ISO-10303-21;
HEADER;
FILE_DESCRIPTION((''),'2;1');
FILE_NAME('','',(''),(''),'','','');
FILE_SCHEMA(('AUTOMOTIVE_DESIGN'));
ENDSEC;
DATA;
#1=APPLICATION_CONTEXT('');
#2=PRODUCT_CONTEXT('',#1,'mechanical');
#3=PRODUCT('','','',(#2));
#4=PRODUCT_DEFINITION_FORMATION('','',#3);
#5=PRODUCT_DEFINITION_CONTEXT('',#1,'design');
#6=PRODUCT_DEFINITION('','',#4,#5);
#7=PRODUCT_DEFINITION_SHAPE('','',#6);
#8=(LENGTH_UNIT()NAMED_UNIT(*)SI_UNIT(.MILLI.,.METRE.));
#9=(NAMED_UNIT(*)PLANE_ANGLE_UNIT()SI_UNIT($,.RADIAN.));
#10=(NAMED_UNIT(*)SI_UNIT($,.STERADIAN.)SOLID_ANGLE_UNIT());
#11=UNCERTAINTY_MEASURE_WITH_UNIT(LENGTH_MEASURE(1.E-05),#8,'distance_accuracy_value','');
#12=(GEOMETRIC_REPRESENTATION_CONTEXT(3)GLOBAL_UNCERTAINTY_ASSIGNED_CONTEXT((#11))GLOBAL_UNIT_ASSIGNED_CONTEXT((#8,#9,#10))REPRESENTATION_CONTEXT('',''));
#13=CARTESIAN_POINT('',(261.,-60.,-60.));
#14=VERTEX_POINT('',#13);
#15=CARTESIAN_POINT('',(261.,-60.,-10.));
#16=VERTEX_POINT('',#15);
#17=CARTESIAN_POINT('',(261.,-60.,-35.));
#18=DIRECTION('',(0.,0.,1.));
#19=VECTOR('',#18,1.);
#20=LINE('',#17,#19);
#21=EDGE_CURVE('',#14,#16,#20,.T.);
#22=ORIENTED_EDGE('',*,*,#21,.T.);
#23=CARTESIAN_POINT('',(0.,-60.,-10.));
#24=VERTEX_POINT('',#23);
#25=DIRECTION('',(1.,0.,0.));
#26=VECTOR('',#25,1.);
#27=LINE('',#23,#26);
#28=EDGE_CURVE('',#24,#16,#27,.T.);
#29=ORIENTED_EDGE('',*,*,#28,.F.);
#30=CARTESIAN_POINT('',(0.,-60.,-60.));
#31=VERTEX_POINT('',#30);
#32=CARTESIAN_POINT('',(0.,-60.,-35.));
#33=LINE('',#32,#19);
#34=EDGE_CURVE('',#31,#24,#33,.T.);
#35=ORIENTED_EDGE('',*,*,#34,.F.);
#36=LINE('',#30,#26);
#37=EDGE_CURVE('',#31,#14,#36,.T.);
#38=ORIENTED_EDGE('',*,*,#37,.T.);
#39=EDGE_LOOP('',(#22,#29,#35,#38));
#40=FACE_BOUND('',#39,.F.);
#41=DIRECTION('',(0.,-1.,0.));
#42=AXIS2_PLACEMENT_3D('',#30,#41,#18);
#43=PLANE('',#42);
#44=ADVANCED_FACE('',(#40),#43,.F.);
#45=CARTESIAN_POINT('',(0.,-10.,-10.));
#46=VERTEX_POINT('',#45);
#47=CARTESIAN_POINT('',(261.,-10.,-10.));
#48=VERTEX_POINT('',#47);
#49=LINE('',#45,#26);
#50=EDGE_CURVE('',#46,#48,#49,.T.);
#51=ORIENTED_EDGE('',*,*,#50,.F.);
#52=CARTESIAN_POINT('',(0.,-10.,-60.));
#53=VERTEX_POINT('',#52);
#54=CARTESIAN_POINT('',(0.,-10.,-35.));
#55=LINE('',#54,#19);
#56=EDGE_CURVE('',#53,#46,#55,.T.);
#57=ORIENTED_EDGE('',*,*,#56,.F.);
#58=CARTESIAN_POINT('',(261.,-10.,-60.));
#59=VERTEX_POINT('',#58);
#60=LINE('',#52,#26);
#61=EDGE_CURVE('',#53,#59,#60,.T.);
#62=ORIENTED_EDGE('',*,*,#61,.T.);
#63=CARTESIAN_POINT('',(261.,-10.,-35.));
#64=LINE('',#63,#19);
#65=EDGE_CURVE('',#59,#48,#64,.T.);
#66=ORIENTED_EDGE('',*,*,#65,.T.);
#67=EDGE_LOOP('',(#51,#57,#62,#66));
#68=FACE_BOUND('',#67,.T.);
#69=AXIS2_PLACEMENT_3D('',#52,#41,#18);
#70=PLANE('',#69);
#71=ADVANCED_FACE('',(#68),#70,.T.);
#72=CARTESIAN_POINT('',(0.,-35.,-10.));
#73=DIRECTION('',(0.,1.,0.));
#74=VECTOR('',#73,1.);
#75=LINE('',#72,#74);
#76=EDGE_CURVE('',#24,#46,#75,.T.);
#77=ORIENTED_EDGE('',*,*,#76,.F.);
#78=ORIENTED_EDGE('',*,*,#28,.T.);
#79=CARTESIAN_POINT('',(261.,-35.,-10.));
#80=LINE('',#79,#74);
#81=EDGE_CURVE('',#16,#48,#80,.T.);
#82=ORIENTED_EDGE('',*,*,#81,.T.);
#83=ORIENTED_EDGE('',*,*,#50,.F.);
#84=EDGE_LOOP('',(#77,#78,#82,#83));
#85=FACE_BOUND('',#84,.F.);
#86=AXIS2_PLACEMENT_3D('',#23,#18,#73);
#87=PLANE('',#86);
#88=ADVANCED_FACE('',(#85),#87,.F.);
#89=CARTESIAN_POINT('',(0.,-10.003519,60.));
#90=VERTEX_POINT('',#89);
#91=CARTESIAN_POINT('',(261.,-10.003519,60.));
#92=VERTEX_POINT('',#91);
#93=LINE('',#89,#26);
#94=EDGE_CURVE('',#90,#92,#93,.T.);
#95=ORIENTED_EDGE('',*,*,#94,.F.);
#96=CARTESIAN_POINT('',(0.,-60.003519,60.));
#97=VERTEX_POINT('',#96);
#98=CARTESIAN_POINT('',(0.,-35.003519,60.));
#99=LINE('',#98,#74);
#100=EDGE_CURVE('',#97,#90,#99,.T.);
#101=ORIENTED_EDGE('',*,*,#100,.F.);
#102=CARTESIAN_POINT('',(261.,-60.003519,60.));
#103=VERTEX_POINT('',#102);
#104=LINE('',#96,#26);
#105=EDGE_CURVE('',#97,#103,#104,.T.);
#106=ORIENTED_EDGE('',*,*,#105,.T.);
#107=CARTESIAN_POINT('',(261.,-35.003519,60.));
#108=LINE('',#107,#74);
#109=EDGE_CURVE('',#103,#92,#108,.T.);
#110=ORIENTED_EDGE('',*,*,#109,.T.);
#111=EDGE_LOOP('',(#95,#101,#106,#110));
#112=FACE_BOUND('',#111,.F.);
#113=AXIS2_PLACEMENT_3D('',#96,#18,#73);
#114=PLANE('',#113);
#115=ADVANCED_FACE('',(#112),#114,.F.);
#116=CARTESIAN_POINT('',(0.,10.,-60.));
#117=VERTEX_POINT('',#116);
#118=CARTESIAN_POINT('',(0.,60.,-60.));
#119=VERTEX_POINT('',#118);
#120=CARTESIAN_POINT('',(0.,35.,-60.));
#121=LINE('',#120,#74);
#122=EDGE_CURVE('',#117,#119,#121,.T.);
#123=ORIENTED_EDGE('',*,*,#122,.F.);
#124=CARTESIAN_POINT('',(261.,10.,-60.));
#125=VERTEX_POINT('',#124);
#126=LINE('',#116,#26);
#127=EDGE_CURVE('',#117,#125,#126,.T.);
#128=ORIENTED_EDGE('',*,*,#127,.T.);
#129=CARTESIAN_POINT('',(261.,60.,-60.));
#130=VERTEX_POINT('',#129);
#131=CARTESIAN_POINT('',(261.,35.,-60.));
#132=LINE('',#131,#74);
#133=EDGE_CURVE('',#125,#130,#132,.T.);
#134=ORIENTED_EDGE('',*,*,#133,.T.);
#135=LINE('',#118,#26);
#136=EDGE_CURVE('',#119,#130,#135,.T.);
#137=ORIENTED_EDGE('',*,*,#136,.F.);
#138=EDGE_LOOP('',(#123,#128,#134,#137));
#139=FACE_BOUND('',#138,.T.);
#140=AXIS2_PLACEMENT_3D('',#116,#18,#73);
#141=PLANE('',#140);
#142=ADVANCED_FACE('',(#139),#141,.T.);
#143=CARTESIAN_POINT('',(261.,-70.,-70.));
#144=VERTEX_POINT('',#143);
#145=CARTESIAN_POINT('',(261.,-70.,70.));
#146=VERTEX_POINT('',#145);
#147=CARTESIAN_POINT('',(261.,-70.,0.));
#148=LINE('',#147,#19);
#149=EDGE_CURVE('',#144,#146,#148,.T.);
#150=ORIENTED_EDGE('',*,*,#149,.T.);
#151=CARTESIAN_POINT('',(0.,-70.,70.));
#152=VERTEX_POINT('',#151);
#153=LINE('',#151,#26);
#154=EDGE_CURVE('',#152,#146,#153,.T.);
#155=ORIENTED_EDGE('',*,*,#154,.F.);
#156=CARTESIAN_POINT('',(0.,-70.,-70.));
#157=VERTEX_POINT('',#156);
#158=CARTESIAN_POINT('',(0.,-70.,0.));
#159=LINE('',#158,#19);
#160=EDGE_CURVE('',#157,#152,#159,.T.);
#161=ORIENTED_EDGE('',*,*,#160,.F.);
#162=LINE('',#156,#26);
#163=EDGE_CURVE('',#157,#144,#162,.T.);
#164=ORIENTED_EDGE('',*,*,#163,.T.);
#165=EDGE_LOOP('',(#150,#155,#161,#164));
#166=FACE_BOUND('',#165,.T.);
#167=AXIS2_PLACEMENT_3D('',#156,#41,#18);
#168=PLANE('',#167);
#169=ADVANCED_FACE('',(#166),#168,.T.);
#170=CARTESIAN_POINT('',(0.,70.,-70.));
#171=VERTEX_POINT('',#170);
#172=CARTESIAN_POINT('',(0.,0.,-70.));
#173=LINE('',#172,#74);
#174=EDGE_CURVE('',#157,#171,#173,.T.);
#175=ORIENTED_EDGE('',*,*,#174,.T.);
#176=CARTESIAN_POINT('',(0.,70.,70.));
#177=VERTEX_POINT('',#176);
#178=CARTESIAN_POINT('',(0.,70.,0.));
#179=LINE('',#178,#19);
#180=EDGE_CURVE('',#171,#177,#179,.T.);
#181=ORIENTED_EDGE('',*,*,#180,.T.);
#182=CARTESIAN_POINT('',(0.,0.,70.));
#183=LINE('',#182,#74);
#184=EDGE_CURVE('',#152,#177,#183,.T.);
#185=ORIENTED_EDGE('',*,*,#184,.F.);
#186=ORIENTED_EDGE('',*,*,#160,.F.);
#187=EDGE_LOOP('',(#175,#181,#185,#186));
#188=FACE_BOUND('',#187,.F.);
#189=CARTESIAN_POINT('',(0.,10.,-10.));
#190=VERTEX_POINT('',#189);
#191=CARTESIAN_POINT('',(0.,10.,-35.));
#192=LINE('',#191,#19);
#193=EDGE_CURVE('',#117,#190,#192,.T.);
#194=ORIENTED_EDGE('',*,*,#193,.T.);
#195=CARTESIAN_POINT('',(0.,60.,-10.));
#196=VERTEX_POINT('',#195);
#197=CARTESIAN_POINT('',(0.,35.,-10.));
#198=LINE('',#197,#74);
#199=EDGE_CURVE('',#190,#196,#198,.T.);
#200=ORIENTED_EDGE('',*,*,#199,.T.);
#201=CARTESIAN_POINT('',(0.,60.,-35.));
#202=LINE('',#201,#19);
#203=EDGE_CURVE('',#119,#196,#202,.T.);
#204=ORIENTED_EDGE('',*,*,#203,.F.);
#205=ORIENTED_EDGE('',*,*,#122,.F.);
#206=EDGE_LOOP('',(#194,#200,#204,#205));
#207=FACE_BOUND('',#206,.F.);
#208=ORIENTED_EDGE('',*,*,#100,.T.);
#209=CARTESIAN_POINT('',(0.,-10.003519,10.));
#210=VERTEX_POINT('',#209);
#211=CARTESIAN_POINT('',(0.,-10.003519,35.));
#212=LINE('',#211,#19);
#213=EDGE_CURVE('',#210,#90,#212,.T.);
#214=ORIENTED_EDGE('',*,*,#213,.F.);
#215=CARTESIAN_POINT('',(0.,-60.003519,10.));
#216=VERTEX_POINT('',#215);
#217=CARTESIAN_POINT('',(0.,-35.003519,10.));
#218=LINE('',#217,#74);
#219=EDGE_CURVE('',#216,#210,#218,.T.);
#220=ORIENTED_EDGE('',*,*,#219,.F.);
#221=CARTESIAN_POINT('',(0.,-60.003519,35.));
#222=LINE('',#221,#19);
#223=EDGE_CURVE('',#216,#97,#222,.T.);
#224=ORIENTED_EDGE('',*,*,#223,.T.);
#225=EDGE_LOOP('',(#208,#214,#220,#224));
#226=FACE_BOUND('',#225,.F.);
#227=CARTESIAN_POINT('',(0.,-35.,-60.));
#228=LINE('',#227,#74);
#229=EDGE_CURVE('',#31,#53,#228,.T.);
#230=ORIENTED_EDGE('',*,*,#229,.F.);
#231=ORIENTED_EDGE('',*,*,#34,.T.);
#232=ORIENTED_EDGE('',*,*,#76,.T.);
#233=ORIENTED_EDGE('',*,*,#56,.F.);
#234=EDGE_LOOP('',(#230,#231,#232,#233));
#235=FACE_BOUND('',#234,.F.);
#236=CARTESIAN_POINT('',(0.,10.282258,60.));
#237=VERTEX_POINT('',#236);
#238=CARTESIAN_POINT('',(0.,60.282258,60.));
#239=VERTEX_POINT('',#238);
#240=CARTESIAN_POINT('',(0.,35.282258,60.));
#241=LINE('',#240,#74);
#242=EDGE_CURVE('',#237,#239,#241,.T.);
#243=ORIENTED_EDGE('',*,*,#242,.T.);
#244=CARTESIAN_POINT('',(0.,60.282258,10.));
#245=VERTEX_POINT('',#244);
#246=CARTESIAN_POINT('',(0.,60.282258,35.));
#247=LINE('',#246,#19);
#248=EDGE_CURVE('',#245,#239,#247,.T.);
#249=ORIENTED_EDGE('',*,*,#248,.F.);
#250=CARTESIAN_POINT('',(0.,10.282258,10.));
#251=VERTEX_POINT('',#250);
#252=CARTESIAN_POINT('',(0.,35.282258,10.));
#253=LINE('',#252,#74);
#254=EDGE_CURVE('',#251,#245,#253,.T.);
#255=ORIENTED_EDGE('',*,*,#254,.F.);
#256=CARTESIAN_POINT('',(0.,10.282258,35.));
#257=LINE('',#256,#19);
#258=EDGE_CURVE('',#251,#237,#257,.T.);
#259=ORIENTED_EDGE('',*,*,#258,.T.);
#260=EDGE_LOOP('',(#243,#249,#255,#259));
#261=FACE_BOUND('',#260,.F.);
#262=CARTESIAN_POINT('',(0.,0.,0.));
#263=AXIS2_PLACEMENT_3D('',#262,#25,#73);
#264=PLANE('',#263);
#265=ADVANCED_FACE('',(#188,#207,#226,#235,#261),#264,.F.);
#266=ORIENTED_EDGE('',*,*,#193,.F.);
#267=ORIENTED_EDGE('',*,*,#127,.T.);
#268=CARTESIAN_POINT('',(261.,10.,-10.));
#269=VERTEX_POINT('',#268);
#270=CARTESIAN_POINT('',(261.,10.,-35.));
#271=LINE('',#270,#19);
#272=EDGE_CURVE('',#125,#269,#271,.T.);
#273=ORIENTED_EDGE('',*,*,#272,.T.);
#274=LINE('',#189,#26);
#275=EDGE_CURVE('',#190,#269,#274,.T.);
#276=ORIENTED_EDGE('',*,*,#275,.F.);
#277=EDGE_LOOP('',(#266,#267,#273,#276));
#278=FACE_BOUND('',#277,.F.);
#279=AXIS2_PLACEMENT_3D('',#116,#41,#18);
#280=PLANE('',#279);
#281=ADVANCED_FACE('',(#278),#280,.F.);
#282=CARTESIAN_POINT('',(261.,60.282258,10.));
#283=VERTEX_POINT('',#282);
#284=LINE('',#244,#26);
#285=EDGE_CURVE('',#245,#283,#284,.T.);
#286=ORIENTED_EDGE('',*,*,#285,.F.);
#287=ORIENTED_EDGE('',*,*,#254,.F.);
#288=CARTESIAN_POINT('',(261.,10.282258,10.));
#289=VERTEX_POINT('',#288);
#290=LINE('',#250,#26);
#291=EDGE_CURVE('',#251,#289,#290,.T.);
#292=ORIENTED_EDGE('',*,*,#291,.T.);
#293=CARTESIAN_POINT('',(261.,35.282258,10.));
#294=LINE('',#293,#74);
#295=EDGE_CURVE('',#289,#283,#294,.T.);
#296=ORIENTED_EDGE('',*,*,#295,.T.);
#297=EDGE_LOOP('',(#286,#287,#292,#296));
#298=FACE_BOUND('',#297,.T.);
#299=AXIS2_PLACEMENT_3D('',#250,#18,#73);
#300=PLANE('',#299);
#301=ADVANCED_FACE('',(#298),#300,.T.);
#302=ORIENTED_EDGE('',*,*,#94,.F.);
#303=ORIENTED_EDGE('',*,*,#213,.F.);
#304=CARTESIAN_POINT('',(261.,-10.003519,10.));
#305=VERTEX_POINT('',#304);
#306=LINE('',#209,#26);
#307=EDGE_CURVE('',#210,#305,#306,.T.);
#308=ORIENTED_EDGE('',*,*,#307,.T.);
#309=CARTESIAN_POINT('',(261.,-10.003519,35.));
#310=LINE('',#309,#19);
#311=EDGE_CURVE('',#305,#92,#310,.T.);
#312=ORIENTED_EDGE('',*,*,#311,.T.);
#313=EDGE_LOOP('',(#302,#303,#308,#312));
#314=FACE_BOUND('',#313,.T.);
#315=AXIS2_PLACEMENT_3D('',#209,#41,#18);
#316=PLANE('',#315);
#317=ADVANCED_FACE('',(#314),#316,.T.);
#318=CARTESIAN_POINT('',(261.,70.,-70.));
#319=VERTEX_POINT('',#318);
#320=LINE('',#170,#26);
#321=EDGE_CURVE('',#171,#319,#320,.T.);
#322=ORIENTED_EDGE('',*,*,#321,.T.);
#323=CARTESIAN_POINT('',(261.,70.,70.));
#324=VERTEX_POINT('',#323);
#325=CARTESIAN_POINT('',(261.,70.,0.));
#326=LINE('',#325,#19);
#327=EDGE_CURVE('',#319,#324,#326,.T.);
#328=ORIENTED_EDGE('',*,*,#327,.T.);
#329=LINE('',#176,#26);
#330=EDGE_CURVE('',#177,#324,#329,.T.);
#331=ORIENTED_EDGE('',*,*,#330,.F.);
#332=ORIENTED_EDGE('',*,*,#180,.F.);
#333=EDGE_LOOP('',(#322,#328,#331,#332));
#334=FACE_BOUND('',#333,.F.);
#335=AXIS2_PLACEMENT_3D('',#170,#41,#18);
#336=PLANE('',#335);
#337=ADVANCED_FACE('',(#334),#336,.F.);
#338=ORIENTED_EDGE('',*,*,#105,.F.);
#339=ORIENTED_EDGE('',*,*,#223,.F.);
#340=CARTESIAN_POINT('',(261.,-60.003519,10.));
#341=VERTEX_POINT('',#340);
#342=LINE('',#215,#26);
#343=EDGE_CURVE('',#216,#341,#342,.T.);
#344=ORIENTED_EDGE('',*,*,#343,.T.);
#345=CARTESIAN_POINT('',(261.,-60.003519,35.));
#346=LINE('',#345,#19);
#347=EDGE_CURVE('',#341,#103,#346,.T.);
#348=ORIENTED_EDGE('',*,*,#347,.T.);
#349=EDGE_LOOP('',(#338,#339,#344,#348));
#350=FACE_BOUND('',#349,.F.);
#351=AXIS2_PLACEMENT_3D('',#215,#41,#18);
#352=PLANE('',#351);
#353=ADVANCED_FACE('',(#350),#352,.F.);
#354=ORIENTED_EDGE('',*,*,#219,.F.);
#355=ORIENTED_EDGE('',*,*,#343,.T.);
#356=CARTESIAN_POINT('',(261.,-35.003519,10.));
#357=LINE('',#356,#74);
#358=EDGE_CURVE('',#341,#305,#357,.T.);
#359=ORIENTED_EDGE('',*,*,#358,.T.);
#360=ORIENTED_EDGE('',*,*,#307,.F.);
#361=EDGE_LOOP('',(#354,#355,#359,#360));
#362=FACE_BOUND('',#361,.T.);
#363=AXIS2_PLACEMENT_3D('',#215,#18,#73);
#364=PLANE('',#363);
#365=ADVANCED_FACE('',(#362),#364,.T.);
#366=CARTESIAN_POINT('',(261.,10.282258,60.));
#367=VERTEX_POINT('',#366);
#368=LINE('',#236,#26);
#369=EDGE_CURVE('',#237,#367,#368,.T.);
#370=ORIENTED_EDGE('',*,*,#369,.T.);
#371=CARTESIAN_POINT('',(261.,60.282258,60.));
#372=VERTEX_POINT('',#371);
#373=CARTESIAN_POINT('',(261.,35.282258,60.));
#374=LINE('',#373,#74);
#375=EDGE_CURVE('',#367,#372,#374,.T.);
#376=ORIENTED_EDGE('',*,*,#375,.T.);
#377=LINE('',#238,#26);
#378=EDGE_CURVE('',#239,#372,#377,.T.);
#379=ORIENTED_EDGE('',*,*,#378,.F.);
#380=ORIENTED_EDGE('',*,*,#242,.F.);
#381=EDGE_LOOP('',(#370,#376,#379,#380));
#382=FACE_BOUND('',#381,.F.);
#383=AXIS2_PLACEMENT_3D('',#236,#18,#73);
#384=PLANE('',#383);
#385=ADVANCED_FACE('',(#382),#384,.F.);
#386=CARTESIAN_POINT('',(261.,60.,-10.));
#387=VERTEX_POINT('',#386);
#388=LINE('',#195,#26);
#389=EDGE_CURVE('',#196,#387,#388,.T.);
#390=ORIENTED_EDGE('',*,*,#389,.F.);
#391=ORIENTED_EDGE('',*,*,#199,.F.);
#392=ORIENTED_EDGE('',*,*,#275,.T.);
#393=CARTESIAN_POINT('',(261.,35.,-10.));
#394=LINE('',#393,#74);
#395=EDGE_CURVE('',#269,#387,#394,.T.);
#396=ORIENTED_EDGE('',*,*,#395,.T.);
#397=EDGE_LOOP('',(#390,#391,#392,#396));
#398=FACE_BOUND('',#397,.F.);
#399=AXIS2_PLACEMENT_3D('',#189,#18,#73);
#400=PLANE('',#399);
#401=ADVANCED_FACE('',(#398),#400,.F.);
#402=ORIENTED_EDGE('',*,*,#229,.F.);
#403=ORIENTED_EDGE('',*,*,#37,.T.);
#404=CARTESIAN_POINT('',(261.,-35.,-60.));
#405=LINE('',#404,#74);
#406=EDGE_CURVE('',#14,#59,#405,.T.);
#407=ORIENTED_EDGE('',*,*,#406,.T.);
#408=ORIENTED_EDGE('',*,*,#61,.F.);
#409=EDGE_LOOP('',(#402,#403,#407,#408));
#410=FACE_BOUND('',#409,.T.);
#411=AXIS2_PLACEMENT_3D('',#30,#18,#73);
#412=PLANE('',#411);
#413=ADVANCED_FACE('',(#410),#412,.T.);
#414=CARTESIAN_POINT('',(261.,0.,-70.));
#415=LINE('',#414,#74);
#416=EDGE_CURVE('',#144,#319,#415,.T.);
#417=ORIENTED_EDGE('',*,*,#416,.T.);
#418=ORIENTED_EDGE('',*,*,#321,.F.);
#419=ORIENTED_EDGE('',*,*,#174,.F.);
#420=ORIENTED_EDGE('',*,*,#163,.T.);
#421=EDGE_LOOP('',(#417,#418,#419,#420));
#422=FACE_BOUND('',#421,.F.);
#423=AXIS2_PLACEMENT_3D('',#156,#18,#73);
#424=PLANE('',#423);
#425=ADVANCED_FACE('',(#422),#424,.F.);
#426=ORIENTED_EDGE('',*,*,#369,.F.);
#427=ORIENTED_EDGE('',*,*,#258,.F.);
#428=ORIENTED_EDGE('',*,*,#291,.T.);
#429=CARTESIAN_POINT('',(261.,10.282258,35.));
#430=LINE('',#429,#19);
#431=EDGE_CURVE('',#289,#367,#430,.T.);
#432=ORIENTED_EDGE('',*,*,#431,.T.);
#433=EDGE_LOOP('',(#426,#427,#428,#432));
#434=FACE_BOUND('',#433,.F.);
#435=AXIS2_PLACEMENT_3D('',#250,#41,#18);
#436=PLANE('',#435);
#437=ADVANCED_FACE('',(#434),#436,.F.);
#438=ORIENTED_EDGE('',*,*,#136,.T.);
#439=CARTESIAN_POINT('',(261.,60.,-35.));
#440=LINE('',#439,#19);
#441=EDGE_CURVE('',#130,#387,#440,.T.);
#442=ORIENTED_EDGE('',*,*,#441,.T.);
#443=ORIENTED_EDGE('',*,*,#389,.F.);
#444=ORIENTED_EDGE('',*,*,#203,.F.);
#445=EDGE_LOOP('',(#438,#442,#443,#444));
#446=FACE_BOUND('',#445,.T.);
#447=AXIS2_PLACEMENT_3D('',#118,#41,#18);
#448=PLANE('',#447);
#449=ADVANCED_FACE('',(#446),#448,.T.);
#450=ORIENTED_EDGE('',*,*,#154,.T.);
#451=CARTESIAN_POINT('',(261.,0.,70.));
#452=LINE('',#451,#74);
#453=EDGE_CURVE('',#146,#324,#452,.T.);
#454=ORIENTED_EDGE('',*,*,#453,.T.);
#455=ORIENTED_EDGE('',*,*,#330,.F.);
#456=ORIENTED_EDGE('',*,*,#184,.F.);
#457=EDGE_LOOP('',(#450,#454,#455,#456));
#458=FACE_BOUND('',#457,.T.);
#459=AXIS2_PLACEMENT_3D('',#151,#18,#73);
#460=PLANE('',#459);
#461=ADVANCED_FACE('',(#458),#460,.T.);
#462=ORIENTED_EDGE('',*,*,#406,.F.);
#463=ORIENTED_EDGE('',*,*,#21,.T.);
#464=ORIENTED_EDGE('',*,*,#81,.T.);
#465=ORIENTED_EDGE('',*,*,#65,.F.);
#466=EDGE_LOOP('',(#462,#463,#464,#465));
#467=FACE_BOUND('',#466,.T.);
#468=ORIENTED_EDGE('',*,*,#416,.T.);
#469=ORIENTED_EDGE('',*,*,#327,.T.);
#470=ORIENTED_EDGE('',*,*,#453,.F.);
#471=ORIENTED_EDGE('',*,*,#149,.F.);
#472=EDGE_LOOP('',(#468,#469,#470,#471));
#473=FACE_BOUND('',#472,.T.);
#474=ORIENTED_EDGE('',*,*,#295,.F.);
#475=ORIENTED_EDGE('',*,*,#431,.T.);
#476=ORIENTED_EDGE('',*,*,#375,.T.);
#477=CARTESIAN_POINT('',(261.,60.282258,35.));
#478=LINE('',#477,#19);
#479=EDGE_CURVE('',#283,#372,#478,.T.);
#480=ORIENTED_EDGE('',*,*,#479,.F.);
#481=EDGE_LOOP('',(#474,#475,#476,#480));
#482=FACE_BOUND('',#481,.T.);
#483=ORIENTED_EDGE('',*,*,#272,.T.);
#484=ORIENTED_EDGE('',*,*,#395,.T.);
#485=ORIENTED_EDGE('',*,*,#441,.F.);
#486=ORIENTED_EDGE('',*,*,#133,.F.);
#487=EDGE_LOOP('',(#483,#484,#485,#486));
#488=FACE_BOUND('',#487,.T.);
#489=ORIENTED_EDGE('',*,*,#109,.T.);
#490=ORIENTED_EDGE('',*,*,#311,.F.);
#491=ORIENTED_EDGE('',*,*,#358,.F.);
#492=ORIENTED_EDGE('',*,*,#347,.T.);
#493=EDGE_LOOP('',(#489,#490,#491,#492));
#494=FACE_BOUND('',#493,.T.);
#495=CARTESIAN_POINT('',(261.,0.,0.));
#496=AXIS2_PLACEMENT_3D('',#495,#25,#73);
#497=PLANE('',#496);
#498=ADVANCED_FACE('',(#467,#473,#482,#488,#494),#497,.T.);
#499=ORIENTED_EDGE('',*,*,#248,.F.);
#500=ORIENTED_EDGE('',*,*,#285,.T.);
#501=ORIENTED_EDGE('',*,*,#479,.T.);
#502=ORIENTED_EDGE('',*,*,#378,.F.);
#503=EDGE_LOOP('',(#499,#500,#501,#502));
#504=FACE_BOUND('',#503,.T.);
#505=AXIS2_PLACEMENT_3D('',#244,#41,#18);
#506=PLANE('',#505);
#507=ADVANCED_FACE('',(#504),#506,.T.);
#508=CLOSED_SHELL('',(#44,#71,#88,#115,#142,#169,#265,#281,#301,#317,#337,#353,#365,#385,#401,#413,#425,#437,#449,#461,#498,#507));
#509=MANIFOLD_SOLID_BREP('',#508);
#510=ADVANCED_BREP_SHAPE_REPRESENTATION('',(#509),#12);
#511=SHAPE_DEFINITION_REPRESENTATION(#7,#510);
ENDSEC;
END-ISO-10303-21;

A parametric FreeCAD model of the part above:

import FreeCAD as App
import Part
import Sketcher

V = App.Vector
Q = App.Units.Quantity


def add_polygon(sketch, points):
    """Adds a closed chain of lines whose ends are joined by coincident constraints."""
    first, n = sketch.GeometryCount, len(points)
    for a, b in zip(points, points[1:] + points[:1]):
        sketch.addGeometry(Part.LineSegment(App.Vector(*a, 0), App.Vector(*b, 0)), False)
    for i in range(n):
        sketch.addConstraint(Sketcher.Constraint("Coincident", first + i, 2, first + (i + 1) % n, 1))

doc = App.newDocument("Part")
params = doc.addObject("Spreadsheet::Sheet", "Params")
for row, (alias, value) in enumerate([
    ("sketch1_width", "140 mm"),
    ("sketch1_width2", "50 mm"),
    ("pad1_length", "261 mm"),
], start=1):
    params.set(f"A{row}", alias)
    params.set(f"B{row}", "=" + value)
    params.setAlias(f"B{row}", alias)

body = doc.addObject("PartDesign::Body", "Body")

# Sketch on YZ plane
sketch1 = body.newObject("Sketcher::SketchObject", "Sketch")
sketch1.AttachmentSupport = (doc.getObject("YZ_Plane"), [""])
sketch1.MapMode = "FlatFace"
add_polygon(sketch1, [(-70, 70), (-70, -70), (70, -70), (70, 70)])  # lines 0-3
add_polygon(sketch1, [(-10, -60), (-60, -60), (-60, -10), (-10, -10)])  # lines 4-7
add_polygon(sketch1, [(60, -60), (10, -60), (10, -10), (60, -10)])  # lines 8-11
add_polygon(sketch1, [(-10, 10), (-60, 10), (-60, 60), (-10, 60)])  # lines 12-15
add_polygon(sketch1, [(60, 10), (10, 10), (10, 60), (60, 60)])  # lines 16-19
sketch1.addConstraint([
    Sketcher.Constraint("Vertical", 0),
    Sketcher.Constraint("Horizontal", 1),
    Sketcher.Constraint("Vertical", 2),
    Sketcher.Constraint("Horizontal", 3),
    Sketcher.Constraint("Horizontal", 4),
    Sketcher.Constraint("Vertical", 5),
    Sketcher.Constraint("Horizontal", 6),
    Sketcher.Constraint("Vertical", 7),
    Sketcher.Constraint("Horizontal", 8),
    Sketcher.Constraint("Vertical", 9),
    Sketcher.Constraint("Horizontal", 10),
    Sketcher.Constraint("Vertical", 11),
    Sketcher.Constraint("Horizontal", 12),
    Sketcher.Constraint("Vertical", 13),
    Sketcher.Constraint("Horizontal", 14),
    Sketcher.Constraint("Vertical", 15),
    Sketcher.Constraint("Horizontal", 16),
    Sketcher.Constraint("Vertical", 17),
    Sketcher.Constraint("Horizontal", 18),
    Sketcher.Constraint("Vertical", 19),
    Sketcher.Constraint("Symmetric", 0, 2, 2, 2, -1, 1),
    Sketcher.Constraint("Symmetric", 7, 2, 8, 2, -2),
    Sketcher.Constraint("Symmetric", 5, 2, 10, 2, -2),
    Sketcher.Constraint("Horizontal", 15, 2, 16, 2),
    Sketcher.Constraint("Horizontal", 14, 2, 17, 2),
    Sketcher.Constraint("Equal", 10, 12),
    Sketcher.Constraint("Equal", 14, 16),
    Sketcher.Constraint("Equal", 3, 0),
    Sketcher.Constraint("Equal", 18, 5),
    Sketcher.Constraint("Equal", 11, 13),
    Sketcher.Constraint("DistanceX", 1, 1, 1, 2, Q("140 mm")),
    Sketcher.Constraint("DistanceX", 4, 2, 4, 1, Q("50 mm")),
    Sketcher.Constraint("DistanceX", 4, 2, -1, 1, Q("60 mm")),
    Sketcher.Constraint("DistanceY", 4, 2, -1, 1, Q("60 mm")),
    Sketcher.Constraint("DistanceY", -1, 1, 12, 2, Q("10 mm")),
    Sketcher.Constraint("DistanceX", 12, 2, -1, 1, Q("60.003519 mm")),
    Sketcher.Constraint("DistanceX", 9, 2, 16, 2, Q("0.282258 mm")),
])
sketch1.setExpression("Constraints[50]", "Params.sketch1_width")
sketch1.setExpression("Constraints[51]", "Params.sketch1_width2")
pad1 = body.newObject("PartDesign::Pad", "Pad")
pad1.Profile = sketch1
pad1.setExpression("Length", "Params.pad1_length")

doc.recompute()
